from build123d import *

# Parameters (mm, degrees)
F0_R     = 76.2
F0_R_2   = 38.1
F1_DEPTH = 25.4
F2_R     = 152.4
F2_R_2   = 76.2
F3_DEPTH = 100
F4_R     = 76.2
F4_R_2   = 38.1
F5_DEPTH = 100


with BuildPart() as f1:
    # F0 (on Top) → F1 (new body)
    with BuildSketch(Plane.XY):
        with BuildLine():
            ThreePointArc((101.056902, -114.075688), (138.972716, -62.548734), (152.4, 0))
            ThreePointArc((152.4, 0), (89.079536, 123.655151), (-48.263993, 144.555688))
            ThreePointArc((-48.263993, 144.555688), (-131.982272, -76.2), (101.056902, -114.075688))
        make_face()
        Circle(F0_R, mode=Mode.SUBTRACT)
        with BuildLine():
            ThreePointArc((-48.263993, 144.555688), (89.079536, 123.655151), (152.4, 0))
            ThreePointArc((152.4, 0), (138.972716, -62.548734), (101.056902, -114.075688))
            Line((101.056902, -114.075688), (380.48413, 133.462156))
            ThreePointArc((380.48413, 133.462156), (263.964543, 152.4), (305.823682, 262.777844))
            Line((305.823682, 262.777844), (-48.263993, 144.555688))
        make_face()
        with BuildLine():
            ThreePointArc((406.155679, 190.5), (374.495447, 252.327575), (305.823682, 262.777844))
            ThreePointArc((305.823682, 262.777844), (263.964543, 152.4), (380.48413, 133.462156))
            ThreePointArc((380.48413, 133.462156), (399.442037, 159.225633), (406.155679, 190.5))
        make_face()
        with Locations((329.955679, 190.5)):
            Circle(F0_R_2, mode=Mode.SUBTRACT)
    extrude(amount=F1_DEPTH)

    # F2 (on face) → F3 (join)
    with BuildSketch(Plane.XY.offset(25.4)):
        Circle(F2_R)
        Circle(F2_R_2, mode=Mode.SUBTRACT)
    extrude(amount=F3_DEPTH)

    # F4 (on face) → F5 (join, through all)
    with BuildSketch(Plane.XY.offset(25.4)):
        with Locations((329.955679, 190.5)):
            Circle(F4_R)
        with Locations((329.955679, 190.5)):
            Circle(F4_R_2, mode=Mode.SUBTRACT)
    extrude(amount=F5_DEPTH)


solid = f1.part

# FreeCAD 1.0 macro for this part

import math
import FreeCAD as App
import Part
import Sketcher

V = App.Vector
Q = App.Units.Quantity

doc = App.newDocument("Part")
body = doc.addObject("PartDesign::Body", "Body")

# Sketch on XY plane
sketch1 = body.newObject("Sketcher::SketchObject", "Sketch")
sketch1.AttachmentSupport = (doc.getObject("XY_Plane"), [""])
sketch1.MapMode = "FlatFace"
sketch1.addGeometry(Part.ArcOfCircle(Part.Circle(V(0, 0, 0), V(0, 0, 1), 152.4), math.radians(108.463041), math.radians(311.536959)), False)
sketch1.addGeometry(Part.LineSegment(V(101.056902, -114.075688, 0), V(380.48413, 133.462156, 0)), False)
sketch1.addGeometry(Part.ArcOfCircle(Part.Circle(V(329.955677, 190.500001, 0), V(0, 0, 1), 76.200002), math.radians(-48.46304), math.radians(-0.000001)), False)
sketch1.addGeometry(Part.ArcOfCircle(Part.Circle(V(329.955679, 190.499999, 0), V(0, 0, 1), 76.2), math.radians(0), math.radians(108.463041)), False)
sketch1.addGeometry(Part.LineSegment(V(305.823682, 262.777844, 0), V(-48.263993, 144.555688, 0)), False)
sketch1.addGeometry(Part.Circle(V(0, 0, 0), V(0, 0, 1), 76.2), False)
sketch1.addGeometry(Part.Circle(V(329.955679, 190.5, 0), V(0, 0, 1), 38.1), False)
sketch1.addConstraint(Sketcher.Constraint("Tangent", 0, 2, 1, 1))
sketch1.addConstraint(Sketcher.Constraint("Tangent", 1, 2, 2, 1))
sketch1.addConstraint(Sketcher.Constraint("Tangent", 2, 2, 3, 1))
sketch1.addConstraint(Sketcher.Constraint("Tangent", 3, 2, 4, 1))
sketch1.addConstraint(Sketcher.Constraint("Tangent", 4, 2, 0, 1))
sketch1.addConstraint(Sketcher.Constraint("Coincident", 0, 3, -1, 1))
sketch1.addConstraint(Sketcher.Constraint("Coincident", 5, 3, -1, 1))
sketch1.addConstraint(Sketcher.Constraint("Coincident", 6, 3, 2, 3))
sketch1.addConstraint(Sketcher.Constraint("Equal", 2, 3))
sketch1.addConstraint(Sketcher.Constraint("Equal", 3, 5))
sketch1.addConstraint(Sketcher.Constraint("Horizontal", 6, 3, 2, 2))
sketch1.addConstraint(Sketcher.Constraint("Diameter", 5, Q("6 in")))
sketch1.addConstraint(Sketcher.Constraint("Diameter", 6, Q("3 in")))
sketch1.addConstraint(Sketcher.Constraint("Radius", 0, Q("6 in")))
sketch1.addConstraint(Sketcher.Constraint("DistanceY", -1, 1, 2, 3, Q("7.5 in")))
sketch1.addConstraint(Sketcher.Constraint("DistanceX", -1, 1, 3, 3, 329.955679))
pad1 = body.newObject("PartDesign::Pad", "Pad")
pad1.Profile = sketch1
pad1.Length = Q("1 in")

# Sketch on XY plane
sketch2 = body.newObject("Sketcher::SketchObject", "Sketch001")
sketch2.AttachmentSupport = (doc.getObject("XY_Plane"), [""])
sketch2.MapMode = "FlatFace"
sketch2.AttachmentOffset = App.Placement(V(0, 0, 1 * 25.4), App.Rotation())
sketch2.addGeometry(Part.Circle(V(0, 0, 0), V(0, 0, 1), 152.4), False)
sketch2.addGeometry(Part.Circle(V(0, 0, 0), V(0, 0, 1), 76.2), False)
sketch2.addConstraint(Sketcher.Constraint("Coincident", 0, 3, -1, 1))
sketch2.addConstraint(Sketcher.Constraint("Coincident", 1, 3, -1, 1))
sketch2.addConstraint(Sketcher.Constraint("Diameter", 0, Q("12 in")))
sketch2.addConstraint(Sketcher.Constraint("Diameter", 1, Q("6 in")))
pad2 = body.newObject("PartDesign::Pad", "Pad001")
pad2.Profile = sketch2
pad2.Length = 100

# Sketch on XY plane
sketch3 = body.newObject("Sketcher::SketchObject", "Sketch002")
sketch3.AttachmentSupport = (doc.getObject("XY_Plane"), [""])
sketch3.MapMode = "FlatFace"
sketch3.AttachmentOffset = App.Placement(V(0, 0, 1 * 25.4), App.Rotation())
sketch3.addGeometry(Part.Circle(V(329.955679, 190.5, 0), V(0, 0, 1), 76.2), False)
sketch3.addGeometry(Part.Circle(V(329.955679, 190.5, 0), V(0, 0, 1), 38.1), False)
sketch3.addConstraint(Sketcher.Constraint("Coincident", 1, 3, 0, 3))
sketch3.addConstraint(Sketcher.Constraint("Diameter", 0, Q("6 in")))
sketch3.addConstraint(Sketcher.Constraint("Diameter", 1, Q("3 in")))
sketch3.addConstraint(Sketcher.Constraint("DistanceY", -1, 1, 0, 3, Q("7.5 in")))
sketch3.addConstraint(Sketcher.Constraint("DistanceX", -1, 1, 0, 3, 329.955679))
pad3 = body.newObject("PartDesign::Pad", "Pad002")
pad3.Profile = sketch3
pad3.Length = 100

doc.recompute()
